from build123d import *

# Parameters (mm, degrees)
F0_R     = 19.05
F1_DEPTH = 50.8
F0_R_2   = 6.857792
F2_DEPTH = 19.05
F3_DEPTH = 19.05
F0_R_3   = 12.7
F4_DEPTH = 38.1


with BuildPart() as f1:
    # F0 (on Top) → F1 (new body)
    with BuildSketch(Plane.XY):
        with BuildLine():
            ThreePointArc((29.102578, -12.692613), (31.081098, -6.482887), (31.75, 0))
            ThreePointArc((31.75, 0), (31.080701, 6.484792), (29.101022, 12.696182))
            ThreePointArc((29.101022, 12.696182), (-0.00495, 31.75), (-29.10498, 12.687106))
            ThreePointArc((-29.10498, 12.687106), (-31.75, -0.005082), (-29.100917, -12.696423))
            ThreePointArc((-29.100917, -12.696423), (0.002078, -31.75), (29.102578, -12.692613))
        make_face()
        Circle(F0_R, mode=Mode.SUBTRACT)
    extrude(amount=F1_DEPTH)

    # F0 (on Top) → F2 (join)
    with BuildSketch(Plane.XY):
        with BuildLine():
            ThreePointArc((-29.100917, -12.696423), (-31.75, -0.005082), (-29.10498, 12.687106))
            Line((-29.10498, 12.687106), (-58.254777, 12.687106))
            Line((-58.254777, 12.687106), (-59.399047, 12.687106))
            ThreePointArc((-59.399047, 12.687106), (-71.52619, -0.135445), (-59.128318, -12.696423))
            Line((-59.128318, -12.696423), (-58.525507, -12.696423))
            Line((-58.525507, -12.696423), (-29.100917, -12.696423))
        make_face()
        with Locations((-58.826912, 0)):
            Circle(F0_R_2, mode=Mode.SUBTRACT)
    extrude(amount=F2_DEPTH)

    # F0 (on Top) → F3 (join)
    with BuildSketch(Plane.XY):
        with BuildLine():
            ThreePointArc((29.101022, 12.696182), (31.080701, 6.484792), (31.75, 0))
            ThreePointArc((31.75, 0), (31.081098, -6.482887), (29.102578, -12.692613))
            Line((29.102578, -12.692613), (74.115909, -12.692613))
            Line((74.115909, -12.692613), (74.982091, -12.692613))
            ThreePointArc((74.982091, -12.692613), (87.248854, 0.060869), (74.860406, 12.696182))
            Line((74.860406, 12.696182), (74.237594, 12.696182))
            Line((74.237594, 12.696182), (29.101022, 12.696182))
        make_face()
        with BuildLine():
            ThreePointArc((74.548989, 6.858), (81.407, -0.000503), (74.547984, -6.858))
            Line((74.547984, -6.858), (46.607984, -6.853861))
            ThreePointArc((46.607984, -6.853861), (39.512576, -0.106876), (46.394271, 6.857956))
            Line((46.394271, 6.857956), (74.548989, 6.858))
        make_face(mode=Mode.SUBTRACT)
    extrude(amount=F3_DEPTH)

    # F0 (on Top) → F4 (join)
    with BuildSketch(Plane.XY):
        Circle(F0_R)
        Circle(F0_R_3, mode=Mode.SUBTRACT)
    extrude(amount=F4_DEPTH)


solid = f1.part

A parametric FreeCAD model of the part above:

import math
import FreeCAD as App
import Part
import Sketcher
Q = App.Units.Quantity

doc = App.newDocument("Part")
body = doc.addObject("PartDesign::Body", "Body")

# Sketch on XY plane
sketch1 = doc.addObject("Sketcher::SketchObject", "Sketch")
body.addObject(sketch1)
sketch1.AttachmentSupport = (doc.XY_Plane, [""])
sketch1.MapMode = "FlatFace"
sketch1.addGeometry([
    Part.ArcOfCircle(Part.Circle(App.Vector(0, 0, 0), App.Vector(0, 0, 1), 32), math.radians(-24), math.radians(0)),  # 0
    Part.ArcOfCircle(Part.Circle(App.Vector(0, 0, 0), App.Vector(0, 0, 1), 32), math.radians(0), math.radians(24)),  # 1
    Part.ArcOfCircle(Part.Circle(App.Vector(0, 0, 0), App.Vector(0, 0, 1), 32), math.radians(24), math.radians(156)),  # 2
    Part.ArcOfCircle(Part.Circle(App.Vector(0, 0, 0), App.Vector(0, 0, 1), 32), math.radians(156), math.radians(204)),  # 3
    Part.ArcOfCircle(Part.Circle(App.Vector(0, 0, 0), App.Vector(0, 0, 1), 32), math.radians(-156), math.radians(-24)),  # 4
    Part.Circle(App.Vector(0, 0, 0), App.Vector(0, 0, 1), 19),  # 5
], False)
sketch1.addConstraint([
    Sketcher.Constraint("Tangent", 0, 2, 1, 1),
    Sketcher.Constraint("Tangent", 1, 2, 2, 1),
    Sketcher.Constraint("Tangent", 2, 2, 3, 1),
    Sketcher.Constraint("Tangent", 3, 2, 4, 1),
    Sketcher.Constraint("Tangent", 4, 2, 0, 1),
    Sketcher.Constraint("Coincident", 0, 3, -1, 1),
    Sketcher.Constraint("Coincident", 2, 3, -1, 1),
    Sketcher.Constraint("Coincident", 5, 3, -1, 1),
    Sketcher.Constraint("PointOnObject", 0, 2, -1),
    Sketcher.Constraint("Diameter", 5, Q("1.5 in")),
    Sketcher.Constraint("Radius", 2, Q("1.25 in")),
    Sketcher.Constraint("DistanceX", 2, 2, -1, 1, Q("29.10498 mm")),
    Sketcher.Constraint("DistanceX", -1, 1, 4, 2, Q("29.102578 mm")),
    Sketcher.Constraint("DistanceY", 2, 3, 1, 2, Q("12.696182 mm")),
    Sketcher.Constraint("DistanceY", 3, 2, 2, 2, Q("25.383529 mm")),
])
pad1 = doc.addObject("PartDesign::Pad", "Pad")
body.addObject(pad1)
pad1.Profile = sketch1
pad1.Length = Q("2 in")

# Sketch on XY plane
sketch2 = doc.addObject("Sketcher::SketchObject", "Sketch001")
body.addObject(sketch2)
sketch2.AttachmentSupport = (doc.XY_Plane, [""])
sketch2.MapMode = "FlatFace"
sketch2.addGeometry([
    Part.ArcOfCircle(Part.Circle(App.Vector(0, 0, 0), App.Vector(0, 0, 1), 32), math.radians(156), math.radians(204)),  # 0
    Part.LineSegment(App.Vector(-29, 13, 0), App.Vector(-59, 13, 0)),  # 1
    Part.ArcOfCircle(Part.Circle(App.Vector(-59, 0, 0), App.Vector(0, 0, 1), 13), math.radians(93), math.radians(269)),  # 2
    Part.LineSegment(App.Vector(-59, -13, 0), App.Vector(-29, -13, 0)),  # 3
    Part.Circle(App.Vector(-59, 0, 0), App.Vector(0, 0, 1), 7),  # 4
], False)
sketch2.addConstraint([
    Sketcher.Constraint("Coincident", 0, 1, 1, 1),
    Sketcher.Constraint("Coincident", 1, 2, 2, 1),
    Sketcher.Constraint("Coincident", 2, 2, 3, 1),
    Sketcher.Constraint("Coincident", 3, 2, 0, 2),
    Sketcher.Constraint("Horizontal", 1),
    Sketcher.Constraint("Horizontal", 3),
    Sketcher.Constraint("Coincident", 0, 3, -1, 1),
    Sketcher.Constraint("Coincident", 4, 3, 2, 3),
    Sketcher.Constraint("PointOnObject", 2, 3, -1),
    Sketcher.Constraint("Radius", 2, Q("0.5 in")),
    Sketcher.Constraint("Radius", 0, Q("1.25 in")),
    Sketcher.Constraint("Diameter", 4, Q("13.715584 mm")),
    Sketcher.Constraint("DistanceX", 3, 1, 3, 2, Q("30.027401 mm")),
    Sketcher.Constraint("DistanceX", 1, 2, 1, 1, Q("30.294067 mm")),
    Sketcher.Constraint("DistanceX", 2, 3, 0, 3, Q("58.826912 mm")),
])
pad2 = doc.addObject("PartDesign::Pad", "Pad001")
body.addObject(pad2)
pad2.Profile = sketch2
pad2.Length = Q("0.75 in")

# Sketch on XY plane
sketch3 = doc.addObject("Sketcher::SketchObject", "Sketch002")
body.addObject(sketch3)
sketch3.AttachmentSupport = (doc.XY_Plane, [""])
sketch3.MapMode = "FlatFace"
sketch3.addGeometry([
    Part.ArcOfCircle(Part.Circle(App.Vector(-0.000006, 0, 0), App.Vector(0, 0, 1), 31.750006), math.radians(0.000001), math.radians(23.570658)),  # 0
    Part.ArcOfCircle(Part.Circle(App.Vector(-0.000006, 0.000002, 0), App.Vector(0, 0, 1), 31.750006), math.radians(-23.563634), math.radians(-0.000004)),  # 1
    Part.LineSegment(App.Vector(29.102578, -12.692613, 0), App.Vector(74.982091, -12.692613, 0)),  # 2
    Part.ArcOfCircle(Part.Circle(App.Vector(74.549, 0, 0), App.Vector(0, 0, 1), 12.7), math.radians(-88.045739), math.radians(88.594957)),  # 3
    Part.LineSegment(App.Vector(74.860406, 12.696182, 0), App.Vector(29.101022, 12.696182, 0)),  # 4
    Part.LineSegment(App.Vector(46.394271, 6.857956, 0), App.Vector(74.548989, 6.858, 0)),  # 5
    Part.ArcOfCircle(Part.Circle(App.Vector(74.549, 0, 0), App.Vector(0, 0, 1), 6.858), math.radians(-90.008488), math.radians(90.000092)),  # 6
    Part.LineSegment(App.Vector(74.547984, -6.858, 0), App.Vector(46.607984, -6.853861, 0)),  # 7
    Part.ArcOfCircle(Part.Circle(App.Vector(46.369743, 0, 0), App.Vector(0, 0, 1), 6.858), math.radians(89.795081), math.radians(271.990804)),  # 8
], False)
sketch3.addConstraint([
    Sketcher.Constraint("Coincident", 0, 1, 1, 2),
    Sketcher.Constraint("Coincident", 1, 1, 2, 1),
    Sketcher.Constraint("Coincident", 2, 2, 3, 1),
    Sketcher.Constraint("Coincident", 3, 2, 4, 1),
    Sketcher.Constraint("Coincident", 4, 2, 0, 2),
    Sketcher.Constraint("Coincident", 5, 2, 6, 2),
    Sketcher.Constraint("Coincident", 6, 1, 7, 1),
    Sketcher.Constraint("Coincident", 7, 2, 8, 2),
    Sketcher.Constraint("Coincident", 8, 1, 5, 1),
    Sketcher.Constraint("Horizontal", 2),
    Sketcher.Constraint("Horizontal", 4),
    Sketcher.Constraint("Coincident", 0, 3, -1, 1),
    Sketcher.Constraint("Coincident", 1, 3, -1, 1),
    Sketcher.Constraint("Coincident", 6, 3, 3, 3),
    Sketcher.Constraint("PointOnObject", 3, 3, -1),
    Sketcher.Constraint("PointOnObject", 8, 3, -1),
    Sketcher.Constraint("PointOnObject", 0, 1, -1),
    Sketcher.Constraint("Radius", 3, Q("0.5 in")),
    Sketcher.Constraint("Radius", 6, Q("0.27 in")),
    Sketcher.Constraint("Radius", 8, Q("0.27 in")),
    Sketcher.Constraint("Distance", 7, Q("1.1 in")),
    Sketcher.Constraint("DistanceX", -1, 1, 0, 1, Q("1.25 in")),
    Sketcher.Constraint("DistanceX", -1, 1, 3, 3, Q("2.935 in")),
    Sketcher.Constraint("DistanceX", 6, 1, 3, 2, Q("0.0123001 in")),
    Sketcher.Constraint("DistanceX", 5, 2, 2, 2, Q("0.433102 mm")),
    Sketcher.Constraint("Distance", 5, Q("28.154718 mm")),
    Sketcher.Constraint("DistanceX", 2, 1, 2, 2, Q("45.879513 mm")),
    Sketcher.Constraint("DistanceX", 4, 2, 4, 1, Q("45.759384 mm")),
    Sketcher.Constraint("DistanceY", 7, 2, -1, 1, Q("6.853861 mm")),
])
pad3 = doc.addObject("PartDesign::Pad", "Pad002")
body.addObject(pad3)
pad3.Profile = sketch3
pad3.Length = Q("0.75 in")

# Sketch on XY plane
sketch4 = doc.addObject("Sketcher::SketchObject", "Sketch003")
body.addObject(sketch4)
sketch4.AttachmentSupport = (doc.XY_Plane, [""])
sketch4.MapMode = "FlatFace"
sketch4.addGeometry([
    Part.Circle(App.Vector(0, 0, 0), App.Vector(0, 0, 1), 19),
    Part.Circle(App.Vector(0, 0, 0), App.Vector(0, 0, 1), 13),
], False)
sketch4.addConstraint([
    Sketcher.Constraint("Coincident", 0, 3, -1, 1),
    Sketcher.Constraint("Coincident", 1, 3, -1, 1),
    Sketcher.Constraint("Diameter", 1, Q("1 in")),
    Sketcher.Constraint("Diameter", 0, Q("1.5 in")),
])
pad4 = doc.addObject("PartDesign::Pad", "Pad003")
body.addObject(pad4)
pad4.Profile = sketch4
pad4.Length = Q("1.5 in")

doc.recompute()
